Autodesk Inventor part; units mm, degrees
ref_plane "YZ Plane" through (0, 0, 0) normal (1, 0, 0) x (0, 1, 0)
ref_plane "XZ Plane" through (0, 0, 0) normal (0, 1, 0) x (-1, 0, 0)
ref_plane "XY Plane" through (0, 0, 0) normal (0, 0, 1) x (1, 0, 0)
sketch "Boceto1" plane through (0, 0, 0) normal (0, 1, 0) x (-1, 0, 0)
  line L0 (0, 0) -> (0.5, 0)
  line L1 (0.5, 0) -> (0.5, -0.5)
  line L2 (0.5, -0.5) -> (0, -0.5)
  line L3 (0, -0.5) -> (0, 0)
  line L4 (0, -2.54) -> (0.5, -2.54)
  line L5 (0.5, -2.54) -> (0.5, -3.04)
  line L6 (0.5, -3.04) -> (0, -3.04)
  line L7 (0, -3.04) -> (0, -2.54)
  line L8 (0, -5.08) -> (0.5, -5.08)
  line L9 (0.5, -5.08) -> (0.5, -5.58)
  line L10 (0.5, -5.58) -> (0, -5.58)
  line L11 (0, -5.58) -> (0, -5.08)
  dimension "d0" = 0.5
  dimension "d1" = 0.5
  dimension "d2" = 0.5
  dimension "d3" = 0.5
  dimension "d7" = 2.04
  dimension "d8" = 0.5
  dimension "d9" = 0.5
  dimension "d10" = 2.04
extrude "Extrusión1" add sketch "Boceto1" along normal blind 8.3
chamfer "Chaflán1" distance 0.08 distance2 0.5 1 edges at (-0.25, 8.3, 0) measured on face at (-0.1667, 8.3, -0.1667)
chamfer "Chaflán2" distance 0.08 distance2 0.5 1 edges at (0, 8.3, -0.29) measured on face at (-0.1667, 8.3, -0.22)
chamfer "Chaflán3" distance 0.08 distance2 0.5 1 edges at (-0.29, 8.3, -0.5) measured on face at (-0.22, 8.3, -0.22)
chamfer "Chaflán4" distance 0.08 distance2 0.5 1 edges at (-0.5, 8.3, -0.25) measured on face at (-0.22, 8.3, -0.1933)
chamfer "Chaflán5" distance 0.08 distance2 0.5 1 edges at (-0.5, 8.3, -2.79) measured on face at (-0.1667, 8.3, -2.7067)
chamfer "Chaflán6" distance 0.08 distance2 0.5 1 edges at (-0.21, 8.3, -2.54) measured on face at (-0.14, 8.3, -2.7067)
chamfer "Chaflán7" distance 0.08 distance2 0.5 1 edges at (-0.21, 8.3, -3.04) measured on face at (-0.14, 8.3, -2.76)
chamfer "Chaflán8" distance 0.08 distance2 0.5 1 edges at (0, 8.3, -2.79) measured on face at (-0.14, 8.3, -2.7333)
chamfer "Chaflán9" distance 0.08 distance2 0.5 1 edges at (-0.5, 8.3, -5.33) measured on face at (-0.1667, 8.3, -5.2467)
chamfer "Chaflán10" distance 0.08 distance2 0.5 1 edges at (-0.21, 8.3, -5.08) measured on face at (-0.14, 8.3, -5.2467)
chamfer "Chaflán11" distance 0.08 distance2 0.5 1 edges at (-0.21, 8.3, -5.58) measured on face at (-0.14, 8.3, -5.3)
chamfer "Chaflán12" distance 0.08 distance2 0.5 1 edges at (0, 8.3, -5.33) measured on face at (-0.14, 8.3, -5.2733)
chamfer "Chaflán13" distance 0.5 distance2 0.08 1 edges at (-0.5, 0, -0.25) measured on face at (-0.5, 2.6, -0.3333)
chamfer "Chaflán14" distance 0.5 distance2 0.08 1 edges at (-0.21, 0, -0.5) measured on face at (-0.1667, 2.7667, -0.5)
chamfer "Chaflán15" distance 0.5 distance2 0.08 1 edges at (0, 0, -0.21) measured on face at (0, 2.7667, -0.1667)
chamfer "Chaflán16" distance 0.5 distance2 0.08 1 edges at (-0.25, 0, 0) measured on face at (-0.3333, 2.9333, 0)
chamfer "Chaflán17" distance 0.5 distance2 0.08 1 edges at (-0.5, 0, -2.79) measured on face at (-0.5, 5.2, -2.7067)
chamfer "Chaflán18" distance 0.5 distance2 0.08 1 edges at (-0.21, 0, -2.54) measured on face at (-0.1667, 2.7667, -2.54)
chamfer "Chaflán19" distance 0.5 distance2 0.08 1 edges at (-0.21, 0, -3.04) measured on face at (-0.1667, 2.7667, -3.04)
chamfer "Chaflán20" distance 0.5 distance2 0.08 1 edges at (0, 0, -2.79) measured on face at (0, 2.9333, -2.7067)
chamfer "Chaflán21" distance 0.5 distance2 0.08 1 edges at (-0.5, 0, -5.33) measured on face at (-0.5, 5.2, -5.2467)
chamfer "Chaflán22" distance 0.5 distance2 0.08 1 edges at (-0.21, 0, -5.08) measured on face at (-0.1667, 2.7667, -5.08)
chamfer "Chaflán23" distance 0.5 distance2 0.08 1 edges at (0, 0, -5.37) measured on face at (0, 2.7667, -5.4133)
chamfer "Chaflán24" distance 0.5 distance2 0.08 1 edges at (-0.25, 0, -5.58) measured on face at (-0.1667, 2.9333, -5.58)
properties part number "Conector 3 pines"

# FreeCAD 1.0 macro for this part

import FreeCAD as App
import Part
import Sketcher
Q = App.Units.Quantity


def edges_at(feature, points):
    """Names of the edges that pass closest to the given points."""
    edges = feature.Shape.Edges
    near = lambda p: min(range(len(edges)), key=lambda i: edges[i].distToShape(Part.Vertex(*p))[0])
    return sorted({f"Edge{near(p) + 1}" for p in points})

doc = App.newDocument("Part")
params = doc.addObject("Spreadsheet::Sheet", "Params")
for row, (alias, value) in enumerate([
    ("sketch1_width", "0.5 mm"),
    ("pad1_length", "8.3 mm"),
    ("chamfer_size", "0.08 mm"),
    ("chamfer_size2", "0.5 mm"),
    ("chamfer2_size", "0.08 mm"),
    ("chamfer2_size2", "0.5 mm"),
    ("chamfer3_size", "0.08 mm"),
    ("chamfer3_size2", "0.5 mm"),
    ("chamfer4_size", "0.08 mm"),
    ("chamfer4_size2", "0.5 mm"),
    ("chamfer5_size", "0.08 mm"),
    ("chamfer5_size2", "0.5 mm"),
    ("chamfer6_size", "0.08 mm"),
    ("chamfer6_size2", "0.5 mm"),
    ("chamfer7_size", "0.08 mm"),
    ("chamfer7_size2", "0.5 mm"),
    ("chamfer8_size", "0.08 mm"),
    ("chamfer8_size2", "0.5 mm"),
    ("chamfer9_size", "0.08 mm"),
    ("chamfer9_size2", "0.5 mm"),
    ("chamfer10_size", "0.08 mm"),
    ("chamfer10_size2", "0.5 mm"),
    ("chamfer11_size", "0.08 mm"),
    ("chamfer11_size2", "0.5 mm"),
    ("chamfer12_size", "0.08 mm"),
    ("chamfer12_size2", "0.5 mm"),
    ("chamfer13_size", "0.5 mm"),
    ("chamfer13_size2", "0.08 mm"),
    ("chamfer14_size", "0.5 mm"),
    ("chamfer14_size2", "0.08 mm"),
    ("chamfer15_size", "0.5 mm"),
    ("chamfer15_size2", "0.08 mm"),
    ("chamfer16_size", "0.5 mm"),
    ("chamfer16_size2", "0.08 mm"),
    ("chamfer17_size", "0.5 mm"),
    ("chamfer17_size2", "0.08 mm"),
    ("chamfer18_size", "0.5 mm"),
    ("chamfer18_size2", "0.08 mm"),
    ("chamfer19_size", "0.5 mm"),
    ("chamfer19_size2", "0.08 mm"),
    ("chamfer20_size", "0.5 mm"),
    ("chamfer20_size2", "0.08 mm"),
    ("chamfer21_size", "0.5 mm"),
    ("chamfer21_size2", "0.08 mm"),
    ("chamfer22_size", "0.5 mm"),
    ("chamfer22_size2", "0.08 mm"),
    ("chamfer23_size", "0.5 mm"),
    ("chamfer23_size2", "0.08 mm"),
    ("chamfer24_size", "0.5 mm"),
    ("chamfer24_size2", "0.08 mm"),
], start=1):
    params.set(f"A{row}", alias)
    params.set(f"B{row}", "=" + value)
    params.setAlias(f"B{row}", alias)

body = doc.addObject("PartDesign::Body", "Body")
body.AllowCompound = True

# Sketch on XZ plane
sketch1 = doc.addObject("Sketcher::SketchObject", "Sketch")
body.addObject(sketch1)
sketch1.AttachmentSupport = (doc.XZ_Plane, [""])
sketch1.MapMode = "FlatFace"
sketch1.addGeometry([
    Part.LineSegment(App.Vector(-0.5, 0, 0), App.Vector(0, 0, 0)),  # 0
    Part.LineSegment(App.Vector(0, 0, 0), App.Vector(0, -0.5, 0)),  # 1
    Part.LineSegment(App.Vector(0, -0.5, 0), App.Vector(-0.5, -0.5, 0)),  # 2
    Part.LineSegment(App.Vector(-0.5, -0.5, 0), App.Vector(-0.5, 0, 0)),  # 3
    Part.LineSegment(App.Vector(-0.5, -2.5, 0), App.Vector(0, -2.5, 0)),  # 4
    Part.LineSegment(App.Vector(0, -2.5, 0), App.Vector(0, -3, 0)),  # 5
    Part.LineSegment(App.Vector(0, -3, 0), App.Vector(-0.5, -3, 0)),  # 6
    Part.LineSegment(App.Vector(-0.5, -3, 0), App.Vector(-0.5, -2.5, 0)),  # 7
    Part.LineSegment(App.Vector(-0.5, -5.1, 0), App.Vector(0, -5.1, 0)),  # 8
    Part.LineSegment(App.Vector(0, -5.1, 0), App.Vector(0, -5.6, 0)),  # 9
    Part.LineSegment(App.Vector(0, -5.6, 0), App.Vector(-0.5, -5.6, 0)),  # 10
    Part.LineSegment(App.Vector(-0.5, -5.6, 0), App.Vector(-0.5, -5.1, 0)),  # 11
], False)
sketch1.addConstraint([
    Sketcher.Constraint("Coincident", 0, 2, 1, 1),
    Sketcher.Constraint("Coincident", 1, 2, 2, 1),
    Sketcher.Constraint("Coincident", 2, 2, 3, 1),
    Sketcher.Constraint("Coincident", 3, 2, 0, 1),
    Sketcher.Constraint("Coincident", 4, 2, 5, 1),
    Sketcher.Constraint("Coincident", 5, 2, 6, 1),
    Sketcher.Constraint("Coincident", 6, 2, 7, 1),
    Sketcher.Constraint("Coincident", 7, 2, 4, 1),
    Sketcher.Constraint("Coincident", 8, 2, 9, 1),
    Sketcher.Constraint("Coincident", 9, 2, 10, 1),
    Sketcher.Constraint("Coincident", 10, 2, 11, 1),
    Sketcher.Constraint("Coincident", 11, 2, 8, 1),
    Sketcher.Constraint("Horizontal", 0),
    Sketcher.Constraint("Vertical", 1),
    Sketcher.Constraint("Horizontal", 2),
    Sketcher.Constraint("Vertical", 3),
    Sketcher.Constraint("Horizontal", 4),
    Sketcher.Constraint("Vertical", 5),
    Sketcher.Constraint("Horizontal", 6),
    Sketcher.Constraint("Vertical", 7),
    Sketcher.Constraint("Horizontal", 8),
    Sketcher.Constraint("Vertical", 9),
    Sketcher.Constraint("Horizontal", 10),
    Sketcher.Constraint("Vertical", 11),
    Sketcher.Constraint("Coincident", 0, 2, -1, 1),
    Sketcher.Constraint("PointOnObject", 4, 2, -2),
    Sketcher.Constraint("PointOnObject", 8, 2, -2),
    Sketcher.Constraint("Vertical", 3, 2, 6, 2),
    Sketcher.Constraint("Vertical", 7, 2, 10, 2),
    Sketcher.Constraint("Equal", 10, 1),
    Sketcher.Constraint("Equal", 3, 5),
    Sketcher.Constraint("Equal", 7, 9),
    Sketcher.Constraint("DistanceX", 0, 1, 0, 2, Q("0.5 mm")),
    Sketcher.Constraint("DistanceY", 4, 2, 1, 2, Q("2.04 mm")),
    Sketcher.Constraint("DistanceY", 8, 2, 5, 2, Q("2.04 mm")),
])
sketch1.setExpression("Constraints[32]", "Params.sketch1_width")
pad1 = doc.addObject("PartDesign::Pad", "Pad")
body.addObject(pad1)
pad1.Profile = sketch1
pad1.setExpression("Length", "Params.pad1_length")
pad1.Reversed = True
doc.recompute()

chamfer = doc.addObject("PartDesign::Chamfer", "Chamfer")
body.addObject(chamfer)
chamfer.Base = (pad1, edges_at(pad1, [(-0.25, 8.3, 0)]))
chamfer.ChamferType = "Two distances"
chamfer.setExpression("Size", "Params.chamfer_size")
chamfer.setExpression("Size2", "Params.chamfer_size2")
chamfer.FlipDirection = True
doc.recompute()

chamfer2 = doc.addObject("PartDesign::Chamfer", "Chamfer001")
body.addObject(chamfer2)
chamfer2.Base = (chamfer, edges_at(chamfer, [(0, 8.3, -0.29)]))
chamfer2.ChamferType = "Two distances"
chamfer2.setExpression("Size", "Params.chamfer2_size")
chamfer2.setExpression("Size2", "Params.chamfer2_size2")
chamfer2.FlipDirection = True
doc.recompute()

chamfer3 = doc.addObject("PartDesign::Chamfer", "Chamfer002")
body.addObject(chamfer3)
chamfer3.Base = (chamfer2, edges_at(chamfer2, [(-0.29, 8.3, -0.5)]))
chamfer3.ChamferType = "Two distances"
chamfer3.setExpression("Size", "Params.chamfer3_size")
chamfer3.setExpression("Size2", "Params.chamfer3_size2")
doc.recompute()

chamfer4 = doc.addObject("PartDesign::Chamfer", "Chamfer003")
body.addObject(chamfer4)
chamfer4.Base = (chamfer3, edges_at(chamfer3, [(-0.5, 8.3, -0.25)]))
chamfer4.ChamferType = "Two distances"
chamfer4.setExpression("Size", "Params.chamfer4_size")
chamfer4.setExpression("Size2", "Params.chamfer4_size2")
doc.recompute()

chamfer5 = doc.addObject("PartDesign::Chamfer", "Chamfer004")
body.addObject(chamfer5)
chamfer5.Base = (chamfer4, edges_at(chamfer4, [(-0.5, 8.3, -2.79)]))
chamfer5.ChamferType = "Two distances"
chamfer5.setExpression("Size", "Params.chamfer5_size")
chamfer5.setExpression("Size2", "Params.chamfer5_size2")
chamfer5.FlipDirection = True
doc.recompute()

chamfer6 = doc.addObject("PartDesign::Chamfer", "Chamfer005")
body.addObject(chamfer6)
chamfer6.Base = (chamfer5, edges_at(chamfer5, [(-0.21, 8.3, -2.54)]))
chamfer6.ChamferType = "Two distances"
chamfer6.setExpression("Size", "Params.chamfer6_size")
chamfer6.setExpression("Size2", "Params.chamfer6_size2")
chamfer6.FlipDirection = True
doc.recompute()

chamfer7 = doc.addObject("PartDesign::Chamfer", "Chamfer006")
body.addObject(chamfer7)
chamfer7.Base = (chamfer6, edges_at(chamfer6, [(-0.21, 8.3, -3.04)]))
chamfer7.ChamferType = "Two distances"
chamfer7.setExpression("Size", "Params.chamfer7_size")
chamfer7.setExpression("Size2", "Params.chamfer7_size2")
doc.recompute()

chamfer8 = doc.addObject("PartDesign::Chamfer", "Chamfer007")
body.addObject(chamfer8)
chamfer8.Base = (chamfer7, edges_at(chamfer7, [(0, 8.3, -2.79)]))
chamfer8.ChamferType = "Two distances"
chamfer8.setExpression("Size", "Params.chamfer8_size")
chamfer8.setExpression("Size2", "Params.chamfer8_size2")
chamfer8.FlipDirection = True
doc.recompute()

chamfer9 = doc.addObject("PartDesign::Chamfer", "Chamfer008")
body.addObject(chamfer9)
chamfer9.Base = (chamfer8, edges_at(chamfer8, [(-0.5, 8.3, -5.33)]))
chamfer9.ChamferType = "Two distances"
chamfer9.setExpression("Size", "Params.chamfer9_size")
chamfer9.setExpression("Size2", "Params.chamfer9_size2")
chamfer9.FlipDirection = True
doc.recompute()

chamfer10 = doc.addObject("PartDesign::Chamfer", "Chamfer009")
body.addObject(chamfer10)
chamfer10.Base = (chamfer9, edges_at(chamfer9, [(-0.21, 8.3, -5.08)]))
chamfer10.ChamferType = "Two distances"
chamfer10.setExpression("Size", "Params.chamfer10_size")
chamfer10.setExpression("Size2", "Params.chamfer10_size2")
chamfer10.FlipDirection = True
doc.recompute()

chamfer11 = doc.addObject("PartDesign::Chamfer", "Chamfer010")
body.addObject(chamfer11)
chamfer11.Base = (chamfer10, edges_at(chamfer10, [(-0.21, 8.3, -5.58)]))
chamfer11.ChamferType = "Two distances"
chamfer11.setExpression("Size", "Params.chamfer11_size")
chamfer11.setExpression("Size2", "Params.chamfer11_size2")
doc.recompute()

chamfer12 = doc.addObject("PartDesign::Chamfer", "Chamfer011")
body.addObject(chamfer12)
chamfer12.Base = (chamfer11, edges_at(chamfer11, [(0, 8.3, -5.33)]))
chamfer12.ChamferType = "Two distances"
chamfer12.setExpression("Size", "Params.chamfer12_size")
chamfer12.setExpression("Size2", "Params.chamfer12_size2")
chamfer12.FlipDirection = True
doc.recompute()

chamfer13 = doc.addObject("PartDesign::Chamfer", "Chamfer012")
body.addObject(chamfer13)
chamfer13.Base = (chamfer12, edges_at(chamfer12, [(-0.5, 0, -0.25)]))
chamfer13.ChamferType = "Two distances"
chamfer13.setExpression("Size", "Params.chamfer13_size")
chamfer13.setExpression("Size2", "Params.chamfer13_size2")
doc.recompute()

chamfer14 = doc.addObject("PartDesign::Chamfer", "Chamfer013")
body.addObject(chamfer14)
chamfer14.Base = (chamfer13, edges_at(chamfer13, [(-0.21, 0, -0.5)]))
chamfer14.ChamferType = "Two distances"
chamfer14.setExpression("Size", "Params.chamfer14_size")
chamfer14.setExpression("Size2", "Params.chamfer14_size2")
doc.recompute()

chamfer15 = doc.addObject("PartDesign::Chamfer", "Chamfer014")
body.addObject(chamfer15)
chamfer15.Base = (chamfer14, edges_at(chamfer14, [(0, 0, -0.21)]))
chamfer15.ChamferType = "Two distances"
chamfer15.setExpression("Size", "Params.chamfer15_size")
chamfer15.setExpression("Size2", "Params.chamfer15_size2")
doc.recompute()

chamfer16 = doc.addObject("PartDesign::Chamfer", "Chamfer015")
body.addObject(chamfer16)
chamfer16.Base = (chamfer15, edges_at(chamfer15, [(-0.25, 0, 0)]))
chamfer16.ChamferType = "Two distances"
chamfer16.setExpression("Size", "Params.chamfer16_size")
chamfer16.setExpression("Size2", "Params.chamfer16_size2")
doc.recompute()

chamfer17 = doc.addObject("PartDesign::Chamfer", "Chamfer016")
body.addObject(chamfer17)
chamfer17.Base = (chamfer16, edges_at(chamfer16, [(-0.5, 0, -2.79)]))
chamfer17.ChamferType = "Two distances"
chamfer17.setExpression("Size", "Params.chamfer17_size")
chamfer17.setExpression("Size2", "Params.chamfer17_size2")
chamfer17.FlipDirection = True
doc.recompute()

chamfer18 = doc.addObject("PartDesign::Chamfer", "Chamfer017")
body.addObject(chamfer18)
chamfer18.Base = (chamfer17, edges_at(chamfer17, [(-0.21, 0, -2.54)]))
chamfer18.ChamferType = "Two distances"
chamfer18.setExpression("Size", "Params.chamfer18_size")
chamfer18.setExpression("Size2", "Params.chamfer18_size2")
doc.recompute()

chamfer19 = doc.addObject("PartDesign::Chamfer", "Chamfer018")
body.addObject(chamfer19)
chamfer19.Base = (chamfer18, edges_at(chamfer18, [(-0.21, 0, -3.04)]))
chamfer19.ChamferType = "Two distances"
chamfer19.setExpression("Size", "Params.chamfer19_size")
chamfer19.setExpression("Size2", "Params.chamfer19_size2")
chamfer19.FlipDirection = True
doc.recompute()

chamfer20 = doc.addObject("PartDesign::Chamfer", "Chamfer019")
body.addObject(chamfer20)
chamfer20.Base = (chamfer19, edges_at(chamfer19, [(0, 0, -2.79)]))
chamfer20.ChamferType = "Two distances"
chamfer20.setExpression("Size", "Params.chamfer20_size")
chamfer20.setExpression("Size2", "Params.chamfer20_size2")
doc.recompute()

chamfer21 = doc.addObject("PartDesign::Chamfer", "Chamfer020")
body.addObject(chamfer21)
chamfer21.Base = (chamfer20, edges_at(chamfer20, [(-0.5, 0, -5.33)]))
chamfer21.ChamferType = "Two distances"
chamfer21.setExpression("Size", "Params.chamfer21_size")
chamfer21.setExpression("Size2", "Params.chamfer21_size2")
chamfer21.FlipDirection = True
doc.recompute()

chamfer22 = doc.addObject("PartDesign::Chamfer", "Chamfer021")
body.addObject(chamfer22)
chamfer22.Base = (chamfer21, edges_at(chamfer21, [(-0.21, 0, -5.08)]))
chamfer22.ChamferType = "Two distances"
chamfer22.setExpression("Size", "Params.chamfer22_size")
chamfer22.setExpression("Size2", "Params.chamfer22_size2")
doc.recompute()

chamfer23 = doc.addObject("PartDesign::Chamfer", "Chamfer022")
body.addObject(chamfer23)
chamfer23.Base = (chamfer22, edges_at(chamfer22, [(0, 0, -5.37)]))
chamfer23.ChamferType = "Two distances"
chamfer23.setExpression("Size", "Params.chamfer23_size")
chamfer23.setExpression("Size2", "Params.chamfer23_size2")
doc.recompute()

chamfer24 = doc.addObject("PartDesign::Chamfer", "Chamfer023")
body.addObject(chamfer24)
chamfer24.Base = (chamfer23, edges_at(chamfer23, [(-0.25, 0, -5.58)]))
chamfer24.ChamferType = "Two distances"
chamfer24.setExpression("Size", "Params.chamfer24_size")
chamfer24.setExpression("Size2", "Params.chamfer24_size2")

doc.recompute()
